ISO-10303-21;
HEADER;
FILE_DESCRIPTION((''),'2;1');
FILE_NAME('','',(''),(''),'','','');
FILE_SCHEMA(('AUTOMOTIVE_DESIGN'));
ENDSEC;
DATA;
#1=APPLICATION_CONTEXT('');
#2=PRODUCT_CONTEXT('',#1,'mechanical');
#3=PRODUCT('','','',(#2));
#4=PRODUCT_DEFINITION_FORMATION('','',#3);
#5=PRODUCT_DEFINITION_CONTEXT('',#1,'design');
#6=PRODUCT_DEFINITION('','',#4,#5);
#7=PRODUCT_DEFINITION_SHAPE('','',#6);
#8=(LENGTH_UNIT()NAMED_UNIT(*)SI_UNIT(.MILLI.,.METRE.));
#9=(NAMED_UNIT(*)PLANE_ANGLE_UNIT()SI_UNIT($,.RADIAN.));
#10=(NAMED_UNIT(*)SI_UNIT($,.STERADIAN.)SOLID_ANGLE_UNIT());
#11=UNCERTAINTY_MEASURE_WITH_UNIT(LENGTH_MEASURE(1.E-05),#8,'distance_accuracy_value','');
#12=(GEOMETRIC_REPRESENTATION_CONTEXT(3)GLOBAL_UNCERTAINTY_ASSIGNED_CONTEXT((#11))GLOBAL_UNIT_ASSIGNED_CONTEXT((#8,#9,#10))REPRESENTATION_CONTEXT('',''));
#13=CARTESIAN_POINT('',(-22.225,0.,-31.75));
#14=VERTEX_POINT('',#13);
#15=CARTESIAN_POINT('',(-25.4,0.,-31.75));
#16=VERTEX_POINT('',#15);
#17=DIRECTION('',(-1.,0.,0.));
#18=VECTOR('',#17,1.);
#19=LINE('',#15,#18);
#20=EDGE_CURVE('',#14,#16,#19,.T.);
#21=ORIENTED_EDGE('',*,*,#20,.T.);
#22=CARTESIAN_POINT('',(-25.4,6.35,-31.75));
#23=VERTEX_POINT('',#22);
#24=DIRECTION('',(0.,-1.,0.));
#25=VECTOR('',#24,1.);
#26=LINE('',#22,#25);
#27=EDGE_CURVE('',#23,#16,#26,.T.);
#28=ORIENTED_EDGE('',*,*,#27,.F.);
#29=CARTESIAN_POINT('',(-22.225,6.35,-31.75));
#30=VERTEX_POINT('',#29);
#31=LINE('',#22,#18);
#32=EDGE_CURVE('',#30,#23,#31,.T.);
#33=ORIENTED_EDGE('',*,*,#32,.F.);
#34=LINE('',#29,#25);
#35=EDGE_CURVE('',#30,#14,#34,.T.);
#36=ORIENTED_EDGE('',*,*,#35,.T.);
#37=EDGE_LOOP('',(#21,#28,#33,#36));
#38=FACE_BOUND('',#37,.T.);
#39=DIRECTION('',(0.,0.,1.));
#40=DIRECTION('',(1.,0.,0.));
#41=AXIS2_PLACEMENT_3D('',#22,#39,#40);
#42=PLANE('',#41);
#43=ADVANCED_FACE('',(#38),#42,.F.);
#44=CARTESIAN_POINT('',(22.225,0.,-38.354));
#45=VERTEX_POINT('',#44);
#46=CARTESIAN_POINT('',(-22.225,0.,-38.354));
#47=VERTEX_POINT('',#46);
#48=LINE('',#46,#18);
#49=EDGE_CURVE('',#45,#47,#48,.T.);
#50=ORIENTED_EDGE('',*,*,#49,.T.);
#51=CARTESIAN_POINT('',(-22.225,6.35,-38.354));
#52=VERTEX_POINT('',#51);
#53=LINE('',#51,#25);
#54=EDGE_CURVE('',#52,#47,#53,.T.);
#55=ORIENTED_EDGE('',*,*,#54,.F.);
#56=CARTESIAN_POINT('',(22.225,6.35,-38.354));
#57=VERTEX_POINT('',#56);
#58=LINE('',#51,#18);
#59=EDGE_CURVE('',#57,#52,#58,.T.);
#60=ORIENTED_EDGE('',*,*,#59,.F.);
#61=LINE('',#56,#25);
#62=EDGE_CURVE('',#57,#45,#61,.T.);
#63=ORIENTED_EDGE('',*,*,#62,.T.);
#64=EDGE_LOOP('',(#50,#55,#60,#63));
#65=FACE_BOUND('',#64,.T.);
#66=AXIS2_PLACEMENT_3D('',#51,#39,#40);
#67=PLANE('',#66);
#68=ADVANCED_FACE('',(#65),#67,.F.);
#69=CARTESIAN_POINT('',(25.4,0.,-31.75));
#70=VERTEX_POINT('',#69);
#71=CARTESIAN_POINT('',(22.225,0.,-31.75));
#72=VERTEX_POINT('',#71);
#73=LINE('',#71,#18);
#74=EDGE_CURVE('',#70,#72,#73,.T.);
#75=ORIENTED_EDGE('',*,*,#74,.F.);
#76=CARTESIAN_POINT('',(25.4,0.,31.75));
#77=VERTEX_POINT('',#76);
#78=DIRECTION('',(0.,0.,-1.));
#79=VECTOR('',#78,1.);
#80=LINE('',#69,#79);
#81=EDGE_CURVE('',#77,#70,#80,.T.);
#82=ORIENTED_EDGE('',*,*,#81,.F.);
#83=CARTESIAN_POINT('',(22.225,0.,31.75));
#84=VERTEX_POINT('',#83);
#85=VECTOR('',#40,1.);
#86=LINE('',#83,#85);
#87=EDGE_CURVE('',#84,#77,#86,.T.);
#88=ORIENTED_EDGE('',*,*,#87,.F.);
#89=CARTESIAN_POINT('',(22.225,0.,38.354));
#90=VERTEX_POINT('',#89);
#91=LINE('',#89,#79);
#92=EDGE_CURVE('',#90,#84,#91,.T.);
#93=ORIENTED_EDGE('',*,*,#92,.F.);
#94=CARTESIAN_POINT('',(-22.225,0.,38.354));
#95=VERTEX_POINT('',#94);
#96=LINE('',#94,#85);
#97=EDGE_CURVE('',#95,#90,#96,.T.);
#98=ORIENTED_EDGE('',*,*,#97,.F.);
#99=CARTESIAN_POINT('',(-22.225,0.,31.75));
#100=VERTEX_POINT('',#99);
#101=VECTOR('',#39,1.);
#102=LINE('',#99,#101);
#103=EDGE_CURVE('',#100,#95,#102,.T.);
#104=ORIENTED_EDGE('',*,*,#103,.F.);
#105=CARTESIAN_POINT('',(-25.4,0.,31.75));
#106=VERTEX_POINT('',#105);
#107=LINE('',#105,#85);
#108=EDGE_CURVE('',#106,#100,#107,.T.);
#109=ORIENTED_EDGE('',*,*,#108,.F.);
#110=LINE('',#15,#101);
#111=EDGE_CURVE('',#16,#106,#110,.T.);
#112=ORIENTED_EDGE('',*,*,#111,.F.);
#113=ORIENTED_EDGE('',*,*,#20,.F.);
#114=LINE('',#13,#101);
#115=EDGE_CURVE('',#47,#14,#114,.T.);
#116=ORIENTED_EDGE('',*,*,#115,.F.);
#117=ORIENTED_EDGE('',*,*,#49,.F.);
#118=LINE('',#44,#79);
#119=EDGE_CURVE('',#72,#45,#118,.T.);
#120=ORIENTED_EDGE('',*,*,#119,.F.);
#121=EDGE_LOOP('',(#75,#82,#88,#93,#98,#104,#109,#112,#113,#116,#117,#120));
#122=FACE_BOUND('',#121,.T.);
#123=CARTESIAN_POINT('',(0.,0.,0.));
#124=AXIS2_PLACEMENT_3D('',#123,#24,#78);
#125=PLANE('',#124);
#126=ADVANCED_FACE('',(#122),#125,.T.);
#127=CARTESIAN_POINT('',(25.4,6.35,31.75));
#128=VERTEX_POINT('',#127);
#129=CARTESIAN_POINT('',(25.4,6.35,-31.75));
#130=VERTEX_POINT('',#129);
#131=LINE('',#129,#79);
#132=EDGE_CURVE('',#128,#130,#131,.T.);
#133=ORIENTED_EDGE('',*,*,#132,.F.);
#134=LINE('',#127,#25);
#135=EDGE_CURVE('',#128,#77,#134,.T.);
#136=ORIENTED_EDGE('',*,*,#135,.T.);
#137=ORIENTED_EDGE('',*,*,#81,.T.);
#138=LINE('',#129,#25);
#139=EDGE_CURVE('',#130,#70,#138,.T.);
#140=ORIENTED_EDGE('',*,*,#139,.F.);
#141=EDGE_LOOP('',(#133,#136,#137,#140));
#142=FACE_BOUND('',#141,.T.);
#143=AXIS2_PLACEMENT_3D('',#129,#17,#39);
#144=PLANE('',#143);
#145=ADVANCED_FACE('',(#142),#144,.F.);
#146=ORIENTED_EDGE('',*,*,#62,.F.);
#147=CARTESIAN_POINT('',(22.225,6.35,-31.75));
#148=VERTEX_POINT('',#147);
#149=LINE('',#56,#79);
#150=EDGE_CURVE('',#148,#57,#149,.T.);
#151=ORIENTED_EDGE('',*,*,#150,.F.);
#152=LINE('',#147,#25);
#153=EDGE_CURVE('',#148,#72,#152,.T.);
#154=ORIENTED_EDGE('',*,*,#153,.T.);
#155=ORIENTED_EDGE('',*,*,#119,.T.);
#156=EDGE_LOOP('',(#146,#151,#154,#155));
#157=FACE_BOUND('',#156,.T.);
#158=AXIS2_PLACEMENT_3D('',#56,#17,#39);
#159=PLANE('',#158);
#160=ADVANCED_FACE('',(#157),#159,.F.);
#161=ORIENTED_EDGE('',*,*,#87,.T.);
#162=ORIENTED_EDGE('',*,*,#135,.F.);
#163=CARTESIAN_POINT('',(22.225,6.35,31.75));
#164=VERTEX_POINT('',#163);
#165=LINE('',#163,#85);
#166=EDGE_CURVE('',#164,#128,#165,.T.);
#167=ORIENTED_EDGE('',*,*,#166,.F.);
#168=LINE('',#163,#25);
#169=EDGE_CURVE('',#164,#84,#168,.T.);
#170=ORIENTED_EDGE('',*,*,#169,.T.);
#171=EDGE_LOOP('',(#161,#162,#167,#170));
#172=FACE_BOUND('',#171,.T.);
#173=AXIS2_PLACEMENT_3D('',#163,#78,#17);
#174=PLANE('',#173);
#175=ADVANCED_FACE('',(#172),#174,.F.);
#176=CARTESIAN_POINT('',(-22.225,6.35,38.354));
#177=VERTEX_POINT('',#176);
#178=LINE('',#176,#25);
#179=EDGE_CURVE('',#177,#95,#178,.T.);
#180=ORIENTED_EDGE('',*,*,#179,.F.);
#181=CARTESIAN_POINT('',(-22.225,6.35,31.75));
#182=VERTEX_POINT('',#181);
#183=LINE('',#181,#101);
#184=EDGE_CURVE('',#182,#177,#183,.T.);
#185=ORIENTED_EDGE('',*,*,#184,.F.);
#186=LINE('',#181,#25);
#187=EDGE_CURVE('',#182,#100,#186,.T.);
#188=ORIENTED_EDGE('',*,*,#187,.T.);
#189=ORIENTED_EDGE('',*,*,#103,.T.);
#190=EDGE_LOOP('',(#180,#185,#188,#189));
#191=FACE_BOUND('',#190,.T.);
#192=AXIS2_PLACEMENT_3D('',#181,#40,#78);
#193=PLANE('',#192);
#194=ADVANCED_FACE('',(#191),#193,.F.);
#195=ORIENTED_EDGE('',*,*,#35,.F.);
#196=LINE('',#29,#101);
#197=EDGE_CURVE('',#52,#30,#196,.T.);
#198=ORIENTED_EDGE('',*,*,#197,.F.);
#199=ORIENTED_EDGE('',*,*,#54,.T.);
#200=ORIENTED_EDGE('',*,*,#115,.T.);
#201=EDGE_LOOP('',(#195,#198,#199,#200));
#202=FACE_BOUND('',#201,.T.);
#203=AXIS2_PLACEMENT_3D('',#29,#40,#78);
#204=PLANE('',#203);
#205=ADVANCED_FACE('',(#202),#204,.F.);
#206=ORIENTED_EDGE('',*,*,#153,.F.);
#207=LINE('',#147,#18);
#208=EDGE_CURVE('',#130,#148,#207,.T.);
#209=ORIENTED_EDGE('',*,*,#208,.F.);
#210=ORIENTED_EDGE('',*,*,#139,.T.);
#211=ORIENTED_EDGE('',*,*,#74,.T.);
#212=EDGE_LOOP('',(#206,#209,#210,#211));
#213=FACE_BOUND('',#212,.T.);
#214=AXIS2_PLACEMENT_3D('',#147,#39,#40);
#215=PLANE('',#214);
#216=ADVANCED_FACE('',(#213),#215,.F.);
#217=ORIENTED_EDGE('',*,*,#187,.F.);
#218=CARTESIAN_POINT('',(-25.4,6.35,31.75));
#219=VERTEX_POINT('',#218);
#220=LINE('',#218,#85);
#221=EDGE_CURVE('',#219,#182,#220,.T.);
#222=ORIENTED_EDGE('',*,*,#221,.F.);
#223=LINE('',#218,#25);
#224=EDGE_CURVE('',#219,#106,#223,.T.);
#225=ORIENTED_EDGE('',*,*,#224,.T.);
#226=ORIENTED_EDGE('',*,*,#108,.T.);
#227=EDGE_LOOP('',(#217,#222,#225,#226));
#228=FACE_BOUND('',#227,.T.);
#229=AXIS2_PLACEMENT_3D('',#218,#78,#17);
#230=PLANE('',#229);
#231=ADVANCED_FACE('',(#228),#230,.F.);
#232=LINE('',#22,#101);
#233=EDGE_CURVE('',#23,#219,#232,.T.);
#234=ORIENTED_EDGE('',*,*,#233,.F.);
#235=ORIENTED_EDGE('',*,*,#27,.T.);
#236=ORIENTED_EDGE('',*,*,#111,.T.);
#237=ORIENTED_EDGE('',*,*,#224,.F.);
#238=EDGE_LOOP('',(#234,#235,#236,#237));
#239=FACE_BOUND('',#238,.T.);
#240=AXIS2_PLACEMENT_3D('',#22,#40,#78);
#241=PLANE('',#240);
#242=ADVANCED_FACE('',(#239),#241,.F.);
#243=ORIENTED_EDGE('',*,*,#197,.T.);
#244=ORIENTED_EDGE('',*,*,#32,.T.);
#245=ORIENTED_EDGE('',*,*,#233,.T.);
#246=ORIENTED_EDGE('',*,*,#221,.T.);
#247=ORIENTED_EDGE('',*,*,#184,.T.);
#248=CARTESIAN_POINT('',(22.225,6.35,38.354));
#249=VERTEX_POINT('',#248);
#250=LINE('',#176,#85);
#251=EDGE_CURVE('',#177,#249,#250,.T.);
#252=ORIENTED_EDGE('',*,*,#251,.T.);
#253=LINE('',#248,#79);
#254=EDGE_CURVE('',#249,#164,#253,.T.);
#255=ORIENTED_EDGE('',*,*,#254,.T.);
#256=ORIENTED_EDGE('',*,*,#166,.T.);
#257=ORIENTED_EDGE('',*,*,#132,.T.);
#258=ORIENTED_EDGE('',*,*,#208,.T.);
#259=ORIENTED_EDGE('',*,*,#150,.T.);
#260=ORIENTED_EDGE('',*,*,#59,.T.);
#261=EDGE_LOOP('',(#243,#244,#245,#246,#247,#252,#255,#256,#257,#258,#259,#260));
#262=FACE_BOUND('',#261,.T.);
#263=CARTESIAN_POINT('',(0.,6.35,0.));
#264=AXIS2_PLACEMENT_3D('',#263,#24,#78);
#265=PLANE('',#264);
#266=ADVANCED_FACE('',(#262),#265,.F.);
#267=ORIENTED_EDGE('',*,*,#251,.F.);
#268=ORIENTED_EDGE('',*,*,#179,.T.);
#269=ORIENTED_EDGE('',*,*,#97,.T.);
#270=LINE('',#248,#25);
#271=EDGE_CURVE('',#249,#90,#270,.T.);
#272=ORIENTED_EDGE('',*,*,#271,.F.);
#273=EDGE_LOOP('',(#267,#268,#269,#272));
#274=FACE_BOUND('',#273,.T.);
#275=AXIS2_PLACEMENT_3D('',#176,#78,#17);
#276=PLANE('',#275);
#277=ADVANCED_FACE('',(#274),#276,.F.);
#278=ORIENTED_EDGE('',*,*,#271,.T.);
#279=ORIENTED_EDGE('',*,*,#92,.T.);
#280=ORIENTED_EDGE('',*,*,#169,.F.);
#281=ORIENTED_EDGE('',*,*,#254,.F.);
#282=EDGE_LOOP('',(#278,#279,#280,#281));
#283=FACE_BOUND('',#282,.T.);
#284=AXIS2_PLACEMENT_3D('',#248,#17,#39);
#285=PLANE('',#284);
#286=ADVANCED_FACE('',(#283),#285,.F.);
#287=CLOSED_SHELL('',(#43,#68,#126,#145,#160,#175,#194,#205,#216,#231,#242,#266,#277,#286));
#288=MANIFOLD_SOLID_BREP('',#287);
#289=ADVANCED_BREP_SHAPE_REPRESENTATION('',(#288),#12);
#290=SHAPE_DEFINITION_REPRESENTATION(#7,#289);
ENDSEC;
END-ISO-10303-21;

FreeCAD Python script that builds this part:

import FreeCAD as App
import Part
import Sketcher
Q = App.Units.Quantity


def add_polygon(sketch, points):
    """Adds a closed chain of lines whose ends are joined by coincident constraints."""
    first, n = sketch.GeometryCount, len(points)
    for a, b in zip(points, points[1:] + points[:1]):
        sketch.addGeometry(Part.LineSegment(App.Vector(*a, 0), App.Vector(*b, 0)), False)
    for i in range(n):
        sketch.addConstraint(Sketcher.Constraint("Coincident", first + i, 2, first + (i + 1) % n, 1))

doc = App.newDocument("Part")
body = doc.addObject("PartDesign::Body", "Body")

sketch1 = body.newObject("Sketcher::SketchObject", "Sketch")
sketch1.AttachmentSupport = (doc.getObject("XZ_Plane"), [""])
sketch1.MapMode = "FlatFace"
add_polygon(sketch1, [(-22.225, -38.354), (-22.225, -31.75), (-25.4, -31.75), (-25.4, 31.75), (-22.225, 31.75), (-22.225, 38.354), (22.225, 38.354), (22.225, 31.75), (25.4, 31.75), (25.4, -31.75), (22.225, -31.75), (22.225, -38.354)])
sketch1.addConstraint([
    Sketcher.Constraint("Vertical", 0),
    Sketcher.Constraint("Horizontal", 1),
    Sketcher.Constraint("Vertical", 2),
    Sketcher.Constraint("Horizontal", 3),
    Sketcher.Constraint("Vertical", 4),
    Sketcher.Constraint("Horizontal", 5),
    Sketcher.Constraint("Vertical", 6),
    Sketcher.Constraint("Horizontal", 7),
    Sketcher.Constraint("Vertical", 8),
    Sketcher.Constraint("Horizontal", 9),
    Sketcher.Constraint("Vertical", 10),
    Sketcher.Constraint("Horizontal", 11),
    Sketcher.Constraint("Symmetric", 0, 2, 6, 2, -1, 1),
    Sketcher.Constraint("Symmetric", 2, 2, 8, 2, -1, 1),
    Sketcher.Constraint("Symmetric", 4, 2, 10, 2, -1, 1),
    Sketcher.Constraint("Symmetric", 3, 2, 6, 2, -2),
    Sketcher.Constraint("DistanceY", 2, 1, 2, 2, Q("2.5 in")),
    Sketcher.Constraint("DistanceX", 1, 2, -1, 1, Q("1 in")),
    Sketcher.Constraint("DistanceX", 5, 1, 5, 2, Q("1.75 in")),
    Sketcher.Constraint("DistanceY", 0, 1, 0, 2, Q("0.26 in")),
])
pad1 = body.newObject("PartDesign::Pad", "Pad")
pad1.Profile = sketch1
pad1.Length = Q("0.25 in")
pad1.Reversed = True

doc.recompute()
